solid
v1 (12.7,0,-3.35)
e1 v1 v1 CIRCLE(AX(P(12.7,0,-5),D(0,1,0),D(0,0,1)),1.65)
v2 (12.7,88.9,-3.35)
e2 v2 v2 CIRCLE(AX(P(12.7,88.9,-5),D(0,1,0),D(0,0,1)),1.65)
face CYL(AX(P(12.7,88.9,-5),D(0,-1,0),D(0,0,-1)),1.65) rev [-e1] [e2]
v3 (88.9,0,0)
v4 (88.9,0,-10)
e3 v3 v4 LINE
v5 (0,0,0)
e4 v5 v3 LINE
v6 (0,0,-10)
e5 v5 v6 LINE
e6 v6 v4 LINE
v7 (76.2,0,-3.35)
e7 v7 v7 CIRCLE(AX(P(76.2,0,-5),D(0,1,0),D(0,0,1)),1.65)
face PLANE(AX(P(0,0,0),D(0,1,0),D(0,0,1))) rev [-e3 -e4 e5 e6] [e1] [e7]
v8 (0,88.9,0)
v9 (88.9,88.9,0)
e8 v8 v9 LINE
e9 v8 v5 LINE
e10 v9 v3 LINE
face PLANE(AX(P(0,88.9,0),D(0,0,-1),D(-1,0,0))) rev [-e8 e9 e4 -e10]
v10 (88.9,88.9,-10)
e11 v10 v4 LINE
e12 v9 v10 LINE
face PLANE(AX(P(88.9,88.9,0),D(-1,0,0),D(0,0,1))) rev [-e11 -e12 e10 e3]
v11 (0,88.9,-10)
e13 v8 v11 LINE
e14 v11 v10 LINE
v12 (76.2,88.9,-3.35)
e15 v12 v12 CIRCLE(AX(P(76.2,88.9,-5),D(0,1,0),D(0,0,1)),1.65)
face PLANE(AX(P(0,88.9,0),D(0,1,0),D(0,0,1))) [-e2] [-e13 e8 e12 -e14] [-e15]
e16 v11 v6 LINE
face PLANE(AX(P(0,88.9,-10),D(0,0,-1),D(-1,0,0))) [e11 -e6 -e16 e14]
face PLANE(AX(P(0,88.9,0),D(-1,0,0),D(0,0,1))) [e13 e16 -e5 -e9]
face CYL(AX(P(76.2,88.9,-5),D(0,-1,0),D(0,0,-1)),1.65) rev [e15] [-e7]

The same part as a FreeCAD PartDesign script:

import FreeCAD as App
import Part
import Sketcher


def add_polygon(sketch, points):
    """Adds a closed chain of lines whose ends are joined by coincident constraints."""
    first, n = sketch.GeometryCount, len(points)
    for a, b in zip(points, points[1:] + points[:1]):
        sketch.addGeometry(Part.LineSegment(App.Vector(*a, 0), App.Vector(*b, 0)), False)
    for i in range(n):
        sketch.addConstraint(Sketcher.Constraint("Coincident", first + i, 2, first + (i + 1) % n, 1))

doc = App.newDocument("Part")
body = doc.addObject("PartDesign::Body", "Body")

sketch1 = body.newObject("Sketcher::SketchObject", "Sketch")
sketch1.AttachmentSupport = (doc.getObject("XZ_Plane"), [""])
sketch1.MapMode = "FlatFace"
add_polygon(sketch1, [(0, -10), (0, 0), (88.9, 0), (88.9, -10)])
sketch1.addGeometry(Part.Circle(App.Vector(12.7, -5, 0), App.Vector(0, 0, 1), 1.6), False)
sketch1.addGeometry(Part.Circle(App.Vector(76.2, -5, 0), App.Vector(0, 0, 1), 1.6), False)
sketch1.addConstraint(Sketcher.Constraint("Vertical", 0))
sketch1.addConstraint(Sketcher.Constraint("Horizontal", 1))
sketch1.addConstraint(Sketcher.Constraint("Vertical", 2))
sketch1.addConstraint(Sketcher.Constraint("Horizontal", 3))
sketch1.addConstraint(Sketcher.Constraint("Coincident", 0, 2, -1, 1))
sketch1.addConstraint(Sketcher.Constraint("Equal", 4, 5))
sketch1.addConstraint(Sketcher.Constraint("Horizontal", 4, 3, 5, 3))
sketch1.addConstraint(Sketcher.Constraint("Diameter", 4, 3.3))
sketch1.addConstraint(Sketcher.Constraint("DistanceY", 0, 1, 0, 2, 10.0))
sketch1.addConstraint(Sketcher.Constraint("DistanceX", 1, 1, 1, 2, 88.9))
sketch1.addConstraint(Sketcher.Constraint("DistanceY", 4, 3, -1, 1, 5.0))
sketch1.addConstraint(Sketcher.Constraint("DistanceX", -1, 1, 4, 3, 12.7))
sketch1.addConstraint(Sketcher.Constraint("DistanceX", -1, 1, 5, 3, 76.2))
pad1 = body.newObject("PartDesign::Pad", "Pad")
pad1.Profile = sketch1
pad1.Length = 88.9
pad1.Reversed = True

doc.recompute()
